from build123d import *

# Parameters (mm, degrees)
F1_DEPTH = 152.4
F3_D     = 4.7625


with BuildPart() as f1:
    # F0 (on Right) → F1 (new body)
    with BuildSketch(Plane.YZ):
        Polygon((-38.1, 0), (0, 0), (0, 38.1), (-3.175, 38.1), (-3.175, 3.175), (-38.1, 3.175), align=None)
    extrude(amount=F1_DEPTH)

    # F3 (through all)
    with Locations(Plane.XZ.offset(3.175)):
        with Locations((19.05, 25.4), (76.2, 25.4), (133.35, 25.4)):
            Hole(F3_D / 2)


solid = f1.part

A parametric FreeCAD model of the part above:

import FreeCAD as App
import Part
import Sketcher
Q = App.Units.Quantity


def add_polygon(sketch, points):
    """Adds a closed chain of lines whose ends are joined by coincident constraints."""
    first, n = sketch.GeometryCount, len(points)
    for a, b in zip(points, points[1:] + points[:1]):
        sketch.addGeometry(Part.LineSegment(App.Vector(*a, 0), App.Vector(*b, 0)), False)
    for i in range(n):
        sketch.addConstraint(Sketcher.Constraint("Coincident", first + i, 2, first + (i + 1) % n, 1))

doc = App.newDocument("Part")
params = doc.addObject("Spreadsheet::Sheet", "Params")
for row, (alias, value) in enumerate([
    ("sketch1_width", "1.5 in"),
    ("sketch1_width2", "0.125 in"),
    ("pad1_length", "6 in"),
    ("sketch2_diameter", "0.1875 in"),
    ("hole_diameter", "0.1875 in"),
], start=1):
    params.set(f"A{row}", alias)
    params.set(f"B{row}", "=" + value)
    params.setAlias(f"B{row}", alias)

body = doc.addObject("PartDesign::Body", "Body")

# Sketch on YZ plane
sketch1 = body.newObject("Sketcher::SketchObject", "Sketch")
sketch1.AttachmentSupport = (doc.getObject("YZ_Plane"), [""])
sketch1.MapMode = "FlatFace"
add_polygon(sketch1, [(-38.1, 0), (0, 0), (0, 38.1), (-3.175, 38.1), (-3.175, 3.175), (-38.1, 3.175)])  # lines 0-5
sketch1.addConstraint(Sketcher.Constraint("Horizontal", 0))
sketch1.addConstraint(Sketcher.Constraint("Vertical", 1))
sketch1.addConstraint(Sketcher.Constraint("Horizontal", 2))
sketch1.addConstraint(Sketcher.Constraint("Vertical", 3))
sketch1.addConstraint(Sketcher.Constraint("Horizontal", 4))
sketch1.addConstraint(Sketcher.Constraint("Vertical", 5))
sketch1.addConstraint(Sketcher.Constraint("Coincident", 0, 2, -1, 1))
sketch1.addConstraint(Sketcher.Constraint("Equal", 0, 1))
sketch1.addConstraint(Sketcher.Constraint("Equal", 4, 3))
sketch1.addConstraint(Sketcher.Constraint("DistanceX", 0, 1, 0, 2, Q("1.5 in")))
sketch1.addConstraint(Sketcher.Constraint("DistanceX", 2, 2, 2, 1, Q("0.125 in")))
sketch1.setExpression("Constraints[15]", "Params.sketch1_width")
sketch1.setExpression("Constraints[16]", "Params.sketch1_width2")
pad1 = body.newObject("PartDesign::Pad", "Pad")
pad1.Profile = sketch1
pad1.setExpression("Length", "Params.pad1_length")

# Sketch on XZ plane
sketch2 = body.newObject("Sketcher::SketchObject", "Sketch001")
sketch2.AttachmentSupport = (doc.getObject("XZ_Plane"), [""])
sketch2.MapMode = "FlatFace"
sketch2.AttachmentOffset = App.Placement(App.Vector(0, 0, 0.125 * 25.4), App.Rotation())
sketch2.addGeometry(Part.Circle(App.Vector(19.05, 25.4, 0), App.Vector(0, 0, 1), 2.38125), False)
sketch2.addGeometry(Part.Circle(App.Vector(76.2, 25.4, 0), App.Vector(0, 0, 1), 2.38125), False)
sketch2.addGeometry(Part.Circle(App.Vector(133.35, 25.4, 0), App.Vector(0, 0, 1), 2.38125), False)
sketch2.addConstraint(Sketcher.Constraint("Equal", 0, 1))
sketch2.addConstraint(Sketcher.Constraint("Equal", 1, 2))
sketch2.addConstraint(Sketcher.Constraint("Horizontal", 0, 3, 1, 3))
sketch2.addConstraint(Sketcher.Constraint("Horizontal", 1, 3, 2, 3))
sketch2.addConstraint(Sketcher.Constraint("Diameter", 0, Q("0.1875 in")))
sketch2.addConstraint(Sketcher.Constraint("DistanceY", -1, 1, 0, 3, Q("1 in")))
sketch2.addConstraint(Sketcher.Constraint("DistanceX", -1, 1, 1, 3, Q("3 in")))
sketch2.addConstraint(Sketcher.Constraint("DistanceX", 0, 3, 2, 3, Q("4.5 in")))
sketch2.addConstraint(Sketcher.Constraint("DistanceX", -1, 1, 0, 3, Q("0.75 in")))
sketch2.setExpression("Constraints[4]", "Params.sketch2_diameter")
doc.recompute()
hole = body.newObject("PartDesign::Hole", "Hole")
hole.Profile = sketch2
hole.ThreadType = "None"
hole.setExpression("Diameter", "Params.hole_diameter")
hole.DepthType = "ThroughAll"

doc.recompute()
